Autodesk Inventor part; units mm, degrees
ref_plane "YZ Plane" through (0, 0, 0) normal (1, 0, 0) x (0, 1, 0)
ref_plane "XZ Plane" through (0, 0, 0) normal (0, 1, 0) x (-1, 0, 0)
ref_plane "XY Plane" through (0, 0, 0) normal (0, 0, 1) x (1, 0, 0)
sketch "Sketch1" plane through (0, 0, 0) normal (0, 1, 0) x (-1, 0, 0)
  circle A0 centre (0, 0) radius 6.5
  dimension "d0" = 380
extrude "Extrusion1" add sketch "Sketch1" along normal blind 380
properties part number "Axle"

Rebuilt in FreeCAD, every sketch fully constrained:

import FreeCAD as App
import Part
import Sketcher

V = App.Vector
Q = App.Units.Quantity

doc = App.newDocument("Part")
body = doc.addObject("PartDesign::Body", "Body")

# Sketch on XZ plane
sketch1 = body.newObject("Sketcher::SketchObject", "Sketch")
sketch1.AttachmentSupport = (doc.getObject("XZ_Plane"), [""])
sketch1.MapMode = "FlatFace"
sketch1.addGeometry(Part.Circle(V(0, 0, 0), V(0, 0, 1), 6), False)
sketch1.addConstraint(Sketcher.Constraint("Coincident", 0, 3, -1, 1))
sketch1.addConstraint(Sketcher.Constraint("Diameter", 0, Q("13 mm")))
pad1 = body.newObject("PartDesign::Pad", "Pad")
pad1.Profile = sketch1
pad1.Length = 380
pad1.Reversed = True

doc.recompute()
